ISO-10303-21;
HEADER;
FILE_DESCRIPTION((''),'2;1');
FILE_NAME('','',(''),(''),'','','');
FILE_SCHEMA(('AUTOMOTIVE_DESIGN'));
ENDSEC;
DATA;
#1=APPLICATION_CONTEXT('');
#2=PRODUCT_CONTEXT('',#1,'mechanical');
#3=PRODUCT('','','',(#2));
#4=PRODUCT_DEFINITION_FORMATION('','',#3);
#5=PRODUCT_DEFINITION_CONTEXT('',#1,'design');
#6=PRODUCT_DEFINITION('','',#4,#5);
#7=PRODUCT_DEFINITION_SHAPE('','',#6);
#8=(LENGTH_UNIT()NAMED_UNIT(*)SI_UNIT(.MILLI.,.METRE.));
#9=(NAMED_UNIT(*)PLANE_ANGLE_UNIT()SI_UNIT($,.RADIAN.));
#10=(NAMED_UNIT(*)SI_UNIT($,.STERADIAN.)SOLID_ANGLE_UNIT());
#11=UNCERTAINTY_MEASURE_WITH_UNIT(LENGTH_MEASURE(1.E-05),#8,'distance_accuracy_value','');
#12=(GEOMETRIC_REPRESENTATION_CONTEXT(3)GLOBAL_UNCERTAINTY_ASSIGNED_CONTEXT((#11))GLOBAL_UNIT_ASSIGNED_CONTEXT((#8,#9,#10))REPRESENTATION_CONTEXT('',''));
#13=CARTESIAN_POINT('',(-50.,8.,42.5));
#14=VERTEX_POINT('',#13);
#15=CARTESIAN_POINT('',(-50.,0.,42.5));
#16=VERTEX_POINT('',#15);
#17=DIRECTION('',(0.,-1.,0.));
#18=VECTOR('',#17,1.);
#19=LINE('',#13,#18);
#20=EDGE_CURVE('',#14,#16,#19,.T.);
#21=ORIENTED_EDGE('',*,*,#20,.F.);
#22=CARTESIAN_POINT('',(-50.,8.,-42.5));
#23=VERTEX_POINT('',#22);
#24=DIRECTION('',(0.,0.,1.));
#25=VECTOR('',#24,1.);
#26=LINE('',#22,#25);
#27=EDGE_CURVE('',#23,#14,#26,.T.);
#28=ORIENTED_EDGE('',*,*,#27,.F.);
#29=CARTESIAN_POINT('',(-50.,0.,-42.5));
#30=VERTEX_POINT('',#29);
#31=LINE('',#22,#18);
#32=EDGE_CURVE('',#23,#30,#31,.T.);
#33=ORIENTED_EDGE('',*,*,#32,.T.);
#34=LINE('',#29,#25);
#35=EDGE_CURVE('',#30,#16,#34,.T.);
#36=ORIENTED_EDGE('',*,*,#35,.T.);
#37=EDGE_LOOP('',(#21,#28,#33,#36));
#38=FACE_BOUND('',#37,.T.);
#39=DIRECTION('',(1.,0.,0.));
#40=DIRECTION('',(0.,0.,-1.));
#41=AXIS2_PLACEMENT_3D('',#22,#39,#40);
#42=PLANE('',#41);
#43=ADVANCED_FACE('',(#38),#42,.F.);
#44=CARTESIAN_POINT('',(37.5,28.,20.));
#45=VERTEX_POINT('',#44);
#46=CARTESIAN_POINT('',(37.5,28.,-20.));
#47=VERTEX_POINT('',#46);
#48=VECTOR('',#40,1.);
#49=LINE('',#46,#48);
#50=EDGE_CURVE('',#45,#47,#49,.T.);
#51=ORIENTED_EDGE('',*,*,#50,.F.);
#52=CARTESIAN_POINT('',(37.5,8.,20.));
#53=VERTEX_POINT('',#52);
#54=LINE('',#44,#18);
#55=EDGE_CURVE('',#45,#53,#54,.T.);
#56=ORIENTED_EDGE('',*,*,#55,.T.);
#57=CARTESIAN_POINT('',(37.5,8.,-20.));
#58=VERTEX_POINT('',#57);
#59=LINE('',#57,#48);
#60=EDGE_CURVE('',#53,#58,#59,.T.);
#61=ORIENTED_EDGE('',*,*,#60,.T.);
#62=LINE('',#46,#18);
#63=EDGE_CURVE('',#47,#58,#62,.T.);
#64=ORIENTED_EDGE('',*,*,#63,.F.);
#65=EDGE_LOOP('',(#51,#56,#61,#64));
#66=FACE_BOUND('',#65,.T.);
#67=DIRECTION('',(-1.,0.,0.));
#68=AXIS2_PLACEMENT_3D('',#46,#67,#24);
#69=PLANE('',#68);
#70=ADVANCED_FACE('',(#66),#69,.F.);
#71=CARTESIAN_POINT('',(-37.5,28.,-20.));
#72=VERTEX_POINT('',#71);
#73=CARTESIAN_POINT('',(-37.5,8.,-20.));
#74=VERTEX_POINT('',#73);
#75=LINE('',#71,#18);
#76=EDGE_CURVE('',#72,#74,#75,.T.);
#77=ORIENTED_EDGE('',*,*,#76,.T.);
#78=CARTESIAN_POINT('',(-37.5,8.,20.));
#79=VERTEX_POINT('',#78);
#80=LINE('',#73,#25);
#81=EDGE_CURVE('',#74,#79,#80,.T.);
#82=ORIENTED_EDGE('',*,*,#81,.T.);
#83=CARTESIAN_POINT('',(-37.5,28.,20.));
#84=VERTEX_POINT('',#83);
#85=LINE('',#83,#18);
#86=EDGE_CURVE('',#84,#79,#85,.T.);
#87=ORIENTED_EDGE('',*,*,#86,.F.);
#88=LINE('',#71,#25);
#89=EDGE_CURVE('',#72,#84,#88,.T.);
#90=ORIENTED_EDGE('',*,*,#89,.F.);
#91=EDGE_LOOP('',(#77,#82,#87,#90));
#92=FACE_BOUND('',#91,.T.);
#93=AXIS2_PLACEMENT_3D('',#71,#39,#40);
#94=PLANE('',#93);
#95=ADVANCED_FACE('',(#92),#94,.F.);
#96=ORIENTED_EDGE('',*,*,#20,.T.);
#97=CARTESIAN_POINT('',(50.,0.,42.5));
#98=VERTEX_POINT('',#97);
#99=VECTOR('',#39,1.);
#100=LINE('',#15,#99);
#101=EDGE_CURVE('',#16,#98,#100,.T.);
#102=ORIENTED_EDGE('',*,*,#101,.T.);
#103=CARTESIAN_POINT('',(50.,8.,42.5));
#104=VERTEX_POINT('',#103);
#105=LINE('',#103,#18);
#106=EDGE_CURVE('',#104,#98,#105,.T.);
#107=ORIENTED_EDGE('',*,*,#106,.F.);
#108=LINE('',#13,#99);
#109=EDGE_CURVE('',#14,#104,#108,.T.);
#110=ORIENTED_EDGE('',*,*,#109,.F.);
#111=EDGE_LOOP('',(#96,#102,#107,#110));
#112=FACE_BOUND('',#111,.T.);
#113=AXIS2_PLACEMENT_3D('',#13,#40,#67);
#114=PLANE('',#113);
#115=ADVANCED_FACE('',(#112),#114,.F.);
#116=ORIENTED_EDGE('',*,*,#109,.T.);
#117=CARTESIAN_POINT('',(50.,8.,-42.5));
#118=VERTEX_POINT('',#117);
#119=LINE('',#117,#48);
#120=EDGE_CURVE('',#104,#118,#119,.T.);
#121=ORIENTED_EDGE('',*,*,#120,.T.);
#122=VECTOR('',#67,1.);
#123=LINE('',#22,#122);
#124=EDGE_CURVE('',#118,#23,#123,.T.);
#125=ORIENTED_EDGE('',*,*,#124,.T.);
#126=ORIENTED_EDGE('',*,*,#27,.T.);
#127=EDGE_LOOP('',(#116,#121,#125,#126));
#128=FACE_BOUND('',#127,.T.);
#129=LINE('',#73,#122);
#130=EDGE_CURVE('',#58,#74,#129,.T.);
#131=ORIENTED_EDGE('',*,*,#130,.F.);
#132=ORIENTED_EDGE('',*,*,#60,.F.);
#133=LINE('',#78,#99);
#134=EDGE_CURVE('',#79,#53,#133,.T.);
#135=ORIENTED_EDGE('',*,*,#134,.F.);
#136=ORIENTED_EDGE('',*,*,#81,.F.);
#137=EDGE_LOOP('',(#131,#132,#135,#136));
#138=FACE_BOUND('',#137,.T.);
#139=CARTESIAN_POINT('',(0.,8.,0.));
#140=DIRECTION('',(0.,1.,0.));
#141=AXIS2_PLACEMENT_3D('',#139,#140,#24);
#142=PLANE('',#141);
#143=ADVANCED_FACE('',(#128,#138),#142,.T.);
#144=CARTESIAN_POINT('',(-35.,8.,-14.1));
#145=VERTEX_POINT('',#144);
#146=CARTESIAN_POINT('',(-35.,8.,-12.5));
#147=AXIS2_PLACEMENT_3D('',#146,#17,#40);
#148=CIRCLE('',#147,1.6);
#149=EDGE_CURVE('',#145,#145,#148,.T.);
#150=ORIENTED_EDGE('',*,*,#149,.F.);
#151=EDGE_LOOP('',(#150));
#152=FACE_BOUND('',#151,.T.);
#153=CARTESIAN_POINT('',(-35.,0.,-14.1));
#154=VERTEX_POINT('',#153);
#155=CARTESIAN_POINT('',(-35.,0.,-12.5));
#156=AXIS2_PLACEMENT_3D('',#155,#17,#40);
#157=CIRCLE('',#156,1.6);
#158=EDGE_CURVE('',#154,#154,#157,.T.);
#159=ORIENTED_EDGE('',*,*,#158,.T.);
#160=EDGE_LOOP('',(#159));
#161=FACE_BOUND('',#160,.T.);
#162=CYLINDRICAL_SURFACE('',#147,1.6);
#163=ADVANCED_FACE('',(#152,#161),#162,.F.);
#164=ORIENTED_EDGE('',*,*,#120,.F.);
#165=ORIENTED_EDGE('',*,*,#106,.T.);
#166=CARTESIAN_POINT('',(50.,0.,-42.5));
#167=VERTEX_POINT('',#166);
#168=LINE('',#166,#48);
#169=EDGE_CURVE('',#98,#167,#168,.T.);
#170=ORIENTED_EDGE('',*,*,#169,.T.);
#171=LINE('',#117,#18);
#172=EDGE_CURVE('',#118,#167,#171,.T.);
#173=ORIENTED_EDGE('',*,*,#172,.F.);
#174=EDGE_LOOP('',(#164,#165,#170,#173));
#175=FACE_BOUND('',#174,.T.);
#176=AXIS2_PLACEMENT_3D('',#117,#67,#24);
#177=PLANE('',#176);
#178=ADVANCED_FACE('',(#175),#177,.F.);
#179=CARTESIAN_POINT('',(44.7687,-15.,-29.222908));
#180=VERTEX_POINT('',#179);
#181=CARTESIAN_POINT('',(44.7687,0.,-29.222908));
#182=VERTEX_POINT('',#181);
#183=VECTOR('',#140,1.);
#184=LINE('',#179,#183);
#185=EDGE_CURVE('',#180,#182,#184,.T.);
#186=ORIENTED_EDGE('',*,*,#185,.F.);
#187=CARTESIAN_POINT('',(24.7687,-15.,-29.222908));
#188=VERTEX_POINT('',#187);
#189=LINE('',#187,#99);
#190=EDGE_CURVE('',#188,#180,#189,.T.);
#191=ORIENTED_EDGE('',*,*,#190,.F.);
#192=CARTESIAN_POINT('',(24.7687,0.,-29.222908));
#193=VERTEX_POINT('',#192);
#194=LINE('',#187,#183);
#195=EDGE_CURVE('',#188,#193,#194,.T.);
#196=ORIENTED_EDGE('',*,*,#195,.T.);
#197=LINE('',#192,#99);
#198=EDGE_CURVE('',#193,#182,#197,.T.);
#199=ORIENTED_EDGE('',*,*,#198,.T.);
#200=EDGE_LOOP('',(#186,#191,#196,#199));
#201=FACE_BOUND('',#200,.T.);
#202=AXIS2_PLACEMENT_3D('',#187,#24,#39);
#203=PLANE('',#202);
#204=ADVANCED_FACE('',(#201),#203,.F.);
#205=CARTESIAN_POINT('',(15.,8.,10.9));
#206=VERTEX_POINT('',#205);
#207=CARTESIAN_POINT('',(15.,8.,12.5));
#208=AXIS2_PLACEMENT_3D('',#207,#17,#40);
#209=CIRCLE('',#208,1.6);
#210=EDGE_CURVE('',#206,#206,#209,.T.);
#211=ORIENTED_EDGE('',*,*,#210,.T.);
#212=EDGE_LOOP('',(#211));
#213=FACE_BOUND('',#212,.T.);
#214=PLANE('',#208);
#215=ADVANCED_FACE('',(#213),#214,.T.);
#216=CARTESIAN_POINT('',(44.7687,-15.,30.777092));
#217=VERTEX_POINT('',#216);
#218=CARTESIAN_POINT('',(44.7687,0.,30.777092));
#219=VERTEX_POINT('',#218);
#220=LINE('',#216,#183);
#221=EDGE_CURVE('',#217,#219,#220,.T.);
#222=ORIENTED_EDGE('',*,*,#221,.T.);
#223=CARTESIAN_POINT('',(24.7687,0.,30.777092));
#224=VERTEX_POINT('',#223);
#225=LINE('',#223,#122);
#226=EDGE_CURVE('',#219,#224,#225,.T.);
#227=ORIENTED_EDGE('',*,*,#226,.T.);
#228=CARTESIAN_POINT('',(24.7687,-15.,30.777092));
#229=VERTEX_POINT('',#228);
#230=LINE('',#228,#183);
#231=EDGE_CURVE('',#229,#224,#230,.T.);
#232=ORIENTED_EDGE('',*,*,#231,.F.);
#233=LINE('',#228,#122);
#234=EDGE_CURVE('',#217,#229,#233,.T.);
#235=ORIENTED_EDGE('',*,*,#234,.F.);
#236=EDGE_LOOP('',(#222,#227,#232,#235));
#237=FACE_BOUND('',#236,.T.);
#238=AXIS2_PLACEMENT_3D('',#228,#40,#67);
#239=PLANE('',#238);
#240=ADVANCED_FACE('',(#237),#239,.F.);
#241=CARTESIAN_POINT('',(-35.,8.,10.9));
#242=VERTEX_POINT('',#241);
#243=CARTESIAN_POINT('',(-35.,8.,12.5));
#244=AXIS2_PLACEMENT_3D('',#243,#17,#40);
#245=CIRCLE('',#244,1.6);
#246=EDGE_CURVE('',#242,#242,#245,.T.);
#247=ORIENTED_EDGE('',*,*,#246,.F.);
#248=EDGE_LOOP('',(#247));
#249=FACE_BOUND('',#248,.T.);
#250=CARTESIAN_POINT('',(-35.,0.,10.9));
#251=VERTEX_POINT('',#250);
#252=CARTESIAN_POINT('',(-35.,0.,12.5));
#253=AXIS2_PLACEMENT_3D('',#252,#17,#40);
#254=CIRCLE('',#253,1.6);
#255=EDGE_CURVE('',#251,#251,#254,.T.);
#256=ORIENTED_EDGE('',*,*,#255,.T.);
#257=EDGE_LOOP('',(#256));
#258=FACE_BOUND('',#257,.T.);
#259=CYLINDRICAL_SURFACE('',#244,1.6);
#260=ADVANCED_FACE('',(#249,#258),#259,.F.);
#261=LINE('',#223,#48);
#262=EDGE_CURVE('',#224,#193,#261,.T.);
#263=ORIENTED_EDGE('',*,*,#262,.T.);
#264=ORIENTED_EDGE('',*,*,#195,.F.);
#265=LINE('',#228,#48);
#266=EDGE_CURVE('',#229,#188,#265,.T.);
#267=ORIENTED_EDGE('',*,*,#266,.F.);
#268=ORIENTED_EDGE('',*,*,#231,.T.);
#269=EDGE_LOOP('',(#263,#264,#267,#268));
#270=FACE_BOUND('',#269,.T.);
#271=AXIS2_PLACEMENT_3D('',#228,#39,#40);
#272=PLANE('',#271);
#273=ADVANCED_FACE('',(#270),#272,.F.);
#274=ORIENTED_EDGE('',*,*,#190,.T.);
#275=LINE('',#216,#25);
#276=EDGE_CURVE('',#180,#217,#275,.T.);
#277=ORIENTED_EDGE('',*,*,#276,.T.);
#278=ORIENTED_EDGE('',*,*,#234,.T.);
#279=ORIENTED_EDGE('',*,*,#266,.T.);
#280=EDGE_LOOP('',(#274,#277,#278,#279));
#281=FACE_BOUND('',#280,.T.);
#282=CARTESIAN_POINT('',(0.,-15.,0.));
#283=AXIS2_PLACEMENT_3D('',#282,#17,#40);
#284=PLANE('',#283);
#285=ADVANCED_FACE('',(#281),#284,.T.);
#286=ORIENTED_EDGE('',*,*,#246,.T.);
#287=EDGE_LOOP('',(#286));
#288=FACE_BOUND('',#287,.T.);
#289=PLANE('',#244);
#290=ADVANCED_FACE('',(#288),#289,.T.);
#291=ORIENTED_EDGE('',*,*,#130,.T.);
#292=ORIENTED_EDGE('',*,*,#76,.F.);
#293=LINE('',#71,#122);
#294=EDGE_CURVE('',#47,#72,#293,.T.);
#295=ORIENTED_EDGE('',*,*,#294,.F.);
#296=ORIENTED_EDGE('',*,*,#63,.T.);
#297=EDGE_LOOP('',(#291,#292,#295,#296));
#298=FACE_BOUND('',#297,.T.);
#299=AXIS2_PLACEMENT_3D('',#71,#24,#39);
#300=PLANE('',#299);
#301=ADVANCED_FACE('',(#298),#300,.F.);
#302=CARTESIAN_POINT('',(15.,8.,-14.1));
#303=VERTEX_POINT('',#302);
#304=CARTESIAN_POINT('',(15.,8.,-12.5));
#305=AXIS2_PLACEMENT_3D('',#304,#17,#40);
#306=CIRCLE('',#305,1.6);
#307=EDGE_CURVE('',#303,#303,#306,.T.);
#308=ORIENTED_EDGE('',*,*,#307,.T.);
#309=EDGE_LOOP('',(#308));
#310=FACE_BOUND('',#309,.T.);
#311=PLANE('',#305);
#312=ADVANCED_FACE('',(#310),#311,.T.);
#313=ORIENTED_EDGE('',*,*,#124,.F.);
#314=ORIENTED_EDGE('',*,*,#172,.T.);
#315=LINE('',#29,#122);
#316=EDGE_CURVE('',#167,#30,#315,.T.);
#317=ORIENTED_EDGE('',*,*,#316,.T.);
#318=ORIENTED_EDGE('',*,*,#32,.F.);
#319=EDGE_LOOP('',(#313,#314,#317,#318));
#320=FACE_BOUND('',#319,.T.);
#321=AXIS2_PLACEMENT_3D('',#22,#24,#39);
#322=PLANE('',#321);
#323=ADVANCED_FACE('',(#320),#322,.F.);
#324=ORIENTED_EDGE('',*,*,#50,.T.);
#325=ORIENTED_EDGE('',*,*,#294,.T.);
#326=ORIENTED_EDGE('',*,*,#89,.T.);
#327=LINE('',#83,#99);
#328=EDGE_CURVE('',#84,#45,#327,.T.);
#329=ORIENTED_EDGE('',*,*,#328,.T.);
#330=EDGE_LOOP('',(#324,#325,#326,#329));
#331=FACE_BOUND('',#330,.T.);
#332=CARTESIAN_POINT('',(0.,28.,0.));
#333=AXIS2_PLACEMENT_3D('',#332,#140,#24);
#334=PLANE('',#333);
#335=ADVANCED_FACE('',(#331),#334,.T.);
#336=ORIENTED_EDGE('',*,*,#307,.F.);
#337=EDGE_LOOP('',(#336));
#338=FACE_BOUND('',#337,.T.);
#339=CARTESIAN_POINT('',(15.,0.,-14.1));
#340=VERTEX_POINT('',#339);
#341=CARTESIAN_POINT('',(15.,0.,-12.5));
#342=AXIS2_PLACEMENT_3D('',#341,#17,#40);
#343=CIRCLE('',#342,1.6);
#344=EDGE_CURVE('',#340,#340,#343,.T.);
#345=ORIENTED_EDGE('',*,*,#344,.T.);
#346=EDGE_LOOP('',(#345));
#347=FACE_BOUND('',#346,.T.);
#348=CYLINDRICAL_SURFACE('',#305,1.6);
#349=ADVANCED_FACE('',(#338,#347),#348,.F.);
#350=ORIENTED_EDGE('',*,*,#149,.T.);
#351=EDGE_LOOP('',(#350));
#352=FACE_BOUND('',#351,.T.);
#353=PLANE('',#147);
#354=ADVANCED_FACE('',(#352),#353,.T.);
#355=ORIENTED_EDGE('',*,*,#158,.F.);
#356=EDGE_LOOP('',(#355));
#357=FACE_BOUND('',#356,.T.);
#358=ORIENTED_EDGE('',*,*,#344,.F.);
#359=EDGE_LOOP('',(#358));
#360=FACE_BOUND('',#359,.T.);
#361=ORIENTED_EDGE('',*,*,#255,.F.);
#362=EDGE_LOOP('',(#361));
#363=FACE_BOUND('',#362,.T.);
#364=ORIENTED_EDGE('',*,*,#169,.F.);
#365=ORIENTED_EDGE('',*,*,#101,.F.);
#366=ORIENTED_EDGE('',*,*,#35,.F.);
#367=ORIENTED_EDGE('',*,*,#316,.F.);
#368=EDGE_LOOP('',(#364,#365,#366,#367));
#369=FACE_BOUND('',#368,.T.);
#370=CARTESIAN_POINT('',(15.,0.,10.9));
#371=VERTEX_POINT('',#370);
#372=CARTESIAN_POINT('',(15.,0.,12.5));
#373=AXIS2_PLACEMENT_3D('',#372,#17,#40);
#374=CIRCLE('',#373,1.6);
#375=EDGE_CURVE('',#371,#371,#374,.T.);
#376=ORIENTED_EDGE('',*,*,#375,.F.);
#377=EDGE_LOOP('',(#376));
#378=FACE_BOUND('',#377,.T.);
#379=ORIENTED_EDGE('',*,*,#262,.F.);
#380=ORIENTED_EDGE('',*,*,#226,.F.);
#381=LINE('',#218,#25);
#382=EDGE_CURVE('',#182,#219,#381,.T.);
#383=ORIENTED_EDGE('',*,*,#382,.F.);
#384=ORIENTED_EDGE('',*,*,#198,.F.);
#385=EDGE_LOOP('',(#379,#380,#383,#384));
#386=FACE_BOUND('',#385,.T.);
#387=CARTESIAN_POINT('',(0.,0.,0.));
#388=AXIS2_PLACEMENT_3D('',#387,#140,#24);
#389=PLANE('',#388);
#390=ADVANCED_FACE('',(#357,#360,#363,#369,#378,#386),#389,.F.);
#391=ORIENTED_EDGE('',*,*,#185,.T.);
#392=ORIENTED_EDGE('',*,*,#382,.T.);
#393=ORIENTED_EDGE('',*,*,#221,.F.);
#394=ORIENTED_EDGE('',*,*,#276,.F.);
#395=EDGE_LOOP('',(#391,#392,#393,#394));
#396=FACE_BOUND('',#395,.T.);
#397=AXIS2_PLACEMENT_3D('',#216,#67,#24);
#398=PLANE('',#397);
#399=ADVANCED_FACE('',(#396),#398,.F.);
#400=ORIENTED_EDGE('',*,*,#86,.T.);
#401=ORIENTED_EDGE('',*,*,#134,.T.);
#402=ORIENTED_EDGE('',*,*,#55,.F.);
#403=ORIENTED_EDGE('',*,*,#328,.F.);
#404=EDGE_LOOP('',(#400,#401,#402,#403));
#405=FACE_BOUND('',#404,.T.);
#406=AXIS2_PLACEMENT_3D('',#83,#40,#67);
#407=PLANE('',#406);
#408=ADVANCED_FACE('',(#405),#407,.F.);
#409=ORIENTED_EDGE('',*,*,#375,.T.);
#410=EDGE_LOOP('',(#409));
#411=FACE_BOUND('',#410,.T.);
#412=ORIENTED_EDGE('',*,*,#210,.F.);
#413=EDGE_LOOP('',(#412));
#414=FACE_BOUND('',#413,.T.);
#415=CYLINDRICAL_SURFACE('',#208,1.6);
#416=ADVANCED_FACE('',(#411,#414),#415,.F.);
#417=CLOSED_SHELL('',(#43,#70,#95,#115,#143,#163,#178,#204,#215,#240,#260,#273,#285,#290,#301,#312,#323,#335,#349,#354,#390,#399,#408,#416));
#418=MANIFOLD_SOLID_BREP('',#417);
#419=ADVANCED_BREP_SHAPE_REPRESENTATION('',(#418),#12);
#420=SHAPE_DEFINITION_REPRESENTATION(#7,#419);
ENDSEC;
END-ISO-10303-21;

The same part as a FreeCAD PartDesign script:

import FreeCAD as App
import Part
import Sketcher

V = App.Vector
Q = App.Units.Quantity

doc = App.newDocument("Part")
body = doc.addObject("PartDesign::Body", "Body")

# Sketch on XZ plane
sketch1 = body.newObject("Sketcher::SketchObject", "Sketch")
sketch1.AttachmentSupport = (doc.getObject("XZ_Plane"), [""])
sketch1.MapMode = "FlatFace"
sketch1.addGeometry([
    Part.LineSegment(V(-50, -42, 0), V(-50, 42, 0)),
    Part.LineSegment(V(-50, 42, 0), V(50, 42, 0)),
    Part.LineSegment(V(50, 42, 0), V(50, -42, 0)),
    Part.LineSegment(V(50, -42, 0), V(-50, -42, 0)),
], False)
sketch1.addConstraint([
    Sketcher.Constraint("Coincident", 0, 2, 1, 1),
    Sketcher.Constraint("Coincident", 1, 2, 2, 1),
    Sketcher.Constraint("Coincident", 2, 2, 3, 1),
    Sketcher.Constraint("Coincident", 3, 2, 0, 1),
    Sketcher.Constraint("Vertical", 0),
    Sketcher.Constraint("Horizontal", 1),
    Sketcher.Constraint("Vertical", 2),
    Sketcher.Constraint("Horizontal", 3),
    Sketcher.Constraint("Symmetric", 0, 2, 2, 2, -1, 1),
    Sketcher.Constraint("DistanceX", 1, 1, 1, 2, Q("100 mm")),
    Sketcher.Constraint("DistanceY", 0, 1, 0, 2, Q("85 mm")),
])
pad1 = body.newObject("PartDesign::Pad", "Pad")
pad1.Profile = sketch1
pad1.Length = 8
pad1.Reversed = True

# Sketch on XZ plane
sketch2 = body.newObject("Sketcher::SketchObject", "Sketch001")
sketch2.AttachmentSupport = (doc.getObject("XZ_Plane"), [""])
sketch2.MapMode = "FlatFace"
sketch2.AttachmentOffset = App.Placement(V(0, 0, -8), App.Rotation())
sketch2.addGeometry([
    Part.LineSegment(V(-38, -20, 0), V(-38, 20, 0)),
    Part.LineSegment(V(-38, 20, 0), V(38, 20, 0)),
    Part.LineSegment(V(38, 20, 0), V(38, -20, 0)),
    Part.LineSegment(V(38, -20, 0), V(-38, -20, 0)),
], False)
sketch2.addConstraint([
    Sketcher.Constraint("Coincident", 0, 2, 1, 1),
    Sketcher.Constraint("Coincident", 1, 2, 2, 1),
    Sketcher.Constraint("Coincident", 2, 2, 3, 1),
    Sketcher.Constraint("Coincident", 3, 2, 0, 1),
    Sketcher.Constraint("Vertical", 0),
    Sketcher.Constraint("Horizontal", 1),
    Sketcher.Constraint("Vertical", 2),
    Sketcher.Constraint("Horizontal", 3),
    Sketcher.Constraint("Symmetric", 0, 2, 2, 2, -1, 1),
    Sketcher.Constraint("DistanceX", 1, 1, 1, 2, Q("75 mm")),
    Sketcher.Constraint("DistanceY", 0, 1, 0, 2, Q("40 mm")),
])
pad2 = body.newObject("PartDesign::Pad", "Pad001")
pad2.Profile = sketch2
pad2.Length = 20
pad2.Reversed = True

# Sketch on XZ plane
sketch3 = body.newObject("Sketcher::SketchObject", "Sketch002")
sketch3.AttachmentSupport = (doc.getObject("XZ_Plane"), [""])
sketch3.MapMode = "FlatFace"
sketch3.addGeometry([
    Part.LineSegment(V(25, 31, 0), V(25, -29, 0)),
    Part.LineSegment(V(25, -29, 0), V(45, -29, 0)),
    Part.LineSegment(V(45, -29, 0), V(45, 31, 0)),
    Part.LineSegment(V(45, 31, 0), V(25, 31, 0)),
], False)
sketch3.addConstraint([
    Sketcher.Constraint("Coincident", 0, 2, 1, 1),
    Sketcher.Constraint("Coincident", 1, 2, 2, 1),
    Sketcher.Constraint("Coincident", 2, 2, 3, 1),
    Sketcher.Constraint("Coincident", 3, 2, 0, 1),
    Sketcher.Constraint("Vertical", 0),
    Sketcher.Constraint("Horizontal", 1),
    Sketcher.Constraint("Vertical", 2),
    Sketcher.Constraint("Horizontal", 3),
    Sketcher.Constraint("DistanceX", 1, 1, 1, 2, Q("20 mm")),
    Sketcher.Constraint("DistanceY", 0, 2, 0, 1, Q("60 mm")),
    Sketcher.Constraint("DistanceX", -1, 1, 0, 2, Q("24.7687 mm")),
    Sketcher.Constraint("DistanceY", 0, 2, -1, 1, Q("29.222908 mm")),
])
pad3 = body.newObject("PartDesign::Pad", "Pad002")
pad3.Profile = sketch3
pad3.Length = 15

# Sketch on XZ plane
sketch4 = body.newObject("Sketcher::SketchObject", "Sketch003")
sketch4.AttachmentSupport = (doc.getObject("XZ_Plane"), [""])
sketch4.MapMode = "FlatFace"
sketch4.addGeometry([
    Part.Circle(V(15, -12.5, 0), V(0, 0, 1), 1.6),
    Part.Circle(V(15, 12.5, 0), V(0, 0, 1), 1.6),
    Part.Circle(V(-35, 12.5, 0), V(0, 0, 1), 1.6),
    Part.Circle(V(-35, -12.5, 0), V(0, 0, 1), 1.6),
], False)
sketch4.addConstraint([
    Sketcher.Constraint("Equal", 0, 1),
    Sketcher.Constraint("Equal", 1, 2),
    Sketcher.Constraint("Equal", 2, 3),
    Sketcher.Constraint("Symmetric", 0, 3, 1, 3, -1),
    Sketcher.Constraint("Symmetric", 2, 3, 3, 3, -1),
    Sketcher.Constraint("Horizontal", 1, 3, 2, 3),
    Sketcher.Constraint("Diameter", 0, Q("3.2 mm")),
    Sketcher.Constraint("DistanceX", -1, 1, 0, 3, Q("15 mm")),
    Sketcher.Constraint("DistanceX", 2, 3, -1, 1, Q("35 mm")),
    Sketcher.Constraint("DistanceY", 0, 3, 1, 3, Q("25 mm")),
])
pocket1 = body.newObject("PartDesign::Pocket", "Pocket")
pocket1.Profile = sketch4
pocket1.Length = 8

doc.recompute()
